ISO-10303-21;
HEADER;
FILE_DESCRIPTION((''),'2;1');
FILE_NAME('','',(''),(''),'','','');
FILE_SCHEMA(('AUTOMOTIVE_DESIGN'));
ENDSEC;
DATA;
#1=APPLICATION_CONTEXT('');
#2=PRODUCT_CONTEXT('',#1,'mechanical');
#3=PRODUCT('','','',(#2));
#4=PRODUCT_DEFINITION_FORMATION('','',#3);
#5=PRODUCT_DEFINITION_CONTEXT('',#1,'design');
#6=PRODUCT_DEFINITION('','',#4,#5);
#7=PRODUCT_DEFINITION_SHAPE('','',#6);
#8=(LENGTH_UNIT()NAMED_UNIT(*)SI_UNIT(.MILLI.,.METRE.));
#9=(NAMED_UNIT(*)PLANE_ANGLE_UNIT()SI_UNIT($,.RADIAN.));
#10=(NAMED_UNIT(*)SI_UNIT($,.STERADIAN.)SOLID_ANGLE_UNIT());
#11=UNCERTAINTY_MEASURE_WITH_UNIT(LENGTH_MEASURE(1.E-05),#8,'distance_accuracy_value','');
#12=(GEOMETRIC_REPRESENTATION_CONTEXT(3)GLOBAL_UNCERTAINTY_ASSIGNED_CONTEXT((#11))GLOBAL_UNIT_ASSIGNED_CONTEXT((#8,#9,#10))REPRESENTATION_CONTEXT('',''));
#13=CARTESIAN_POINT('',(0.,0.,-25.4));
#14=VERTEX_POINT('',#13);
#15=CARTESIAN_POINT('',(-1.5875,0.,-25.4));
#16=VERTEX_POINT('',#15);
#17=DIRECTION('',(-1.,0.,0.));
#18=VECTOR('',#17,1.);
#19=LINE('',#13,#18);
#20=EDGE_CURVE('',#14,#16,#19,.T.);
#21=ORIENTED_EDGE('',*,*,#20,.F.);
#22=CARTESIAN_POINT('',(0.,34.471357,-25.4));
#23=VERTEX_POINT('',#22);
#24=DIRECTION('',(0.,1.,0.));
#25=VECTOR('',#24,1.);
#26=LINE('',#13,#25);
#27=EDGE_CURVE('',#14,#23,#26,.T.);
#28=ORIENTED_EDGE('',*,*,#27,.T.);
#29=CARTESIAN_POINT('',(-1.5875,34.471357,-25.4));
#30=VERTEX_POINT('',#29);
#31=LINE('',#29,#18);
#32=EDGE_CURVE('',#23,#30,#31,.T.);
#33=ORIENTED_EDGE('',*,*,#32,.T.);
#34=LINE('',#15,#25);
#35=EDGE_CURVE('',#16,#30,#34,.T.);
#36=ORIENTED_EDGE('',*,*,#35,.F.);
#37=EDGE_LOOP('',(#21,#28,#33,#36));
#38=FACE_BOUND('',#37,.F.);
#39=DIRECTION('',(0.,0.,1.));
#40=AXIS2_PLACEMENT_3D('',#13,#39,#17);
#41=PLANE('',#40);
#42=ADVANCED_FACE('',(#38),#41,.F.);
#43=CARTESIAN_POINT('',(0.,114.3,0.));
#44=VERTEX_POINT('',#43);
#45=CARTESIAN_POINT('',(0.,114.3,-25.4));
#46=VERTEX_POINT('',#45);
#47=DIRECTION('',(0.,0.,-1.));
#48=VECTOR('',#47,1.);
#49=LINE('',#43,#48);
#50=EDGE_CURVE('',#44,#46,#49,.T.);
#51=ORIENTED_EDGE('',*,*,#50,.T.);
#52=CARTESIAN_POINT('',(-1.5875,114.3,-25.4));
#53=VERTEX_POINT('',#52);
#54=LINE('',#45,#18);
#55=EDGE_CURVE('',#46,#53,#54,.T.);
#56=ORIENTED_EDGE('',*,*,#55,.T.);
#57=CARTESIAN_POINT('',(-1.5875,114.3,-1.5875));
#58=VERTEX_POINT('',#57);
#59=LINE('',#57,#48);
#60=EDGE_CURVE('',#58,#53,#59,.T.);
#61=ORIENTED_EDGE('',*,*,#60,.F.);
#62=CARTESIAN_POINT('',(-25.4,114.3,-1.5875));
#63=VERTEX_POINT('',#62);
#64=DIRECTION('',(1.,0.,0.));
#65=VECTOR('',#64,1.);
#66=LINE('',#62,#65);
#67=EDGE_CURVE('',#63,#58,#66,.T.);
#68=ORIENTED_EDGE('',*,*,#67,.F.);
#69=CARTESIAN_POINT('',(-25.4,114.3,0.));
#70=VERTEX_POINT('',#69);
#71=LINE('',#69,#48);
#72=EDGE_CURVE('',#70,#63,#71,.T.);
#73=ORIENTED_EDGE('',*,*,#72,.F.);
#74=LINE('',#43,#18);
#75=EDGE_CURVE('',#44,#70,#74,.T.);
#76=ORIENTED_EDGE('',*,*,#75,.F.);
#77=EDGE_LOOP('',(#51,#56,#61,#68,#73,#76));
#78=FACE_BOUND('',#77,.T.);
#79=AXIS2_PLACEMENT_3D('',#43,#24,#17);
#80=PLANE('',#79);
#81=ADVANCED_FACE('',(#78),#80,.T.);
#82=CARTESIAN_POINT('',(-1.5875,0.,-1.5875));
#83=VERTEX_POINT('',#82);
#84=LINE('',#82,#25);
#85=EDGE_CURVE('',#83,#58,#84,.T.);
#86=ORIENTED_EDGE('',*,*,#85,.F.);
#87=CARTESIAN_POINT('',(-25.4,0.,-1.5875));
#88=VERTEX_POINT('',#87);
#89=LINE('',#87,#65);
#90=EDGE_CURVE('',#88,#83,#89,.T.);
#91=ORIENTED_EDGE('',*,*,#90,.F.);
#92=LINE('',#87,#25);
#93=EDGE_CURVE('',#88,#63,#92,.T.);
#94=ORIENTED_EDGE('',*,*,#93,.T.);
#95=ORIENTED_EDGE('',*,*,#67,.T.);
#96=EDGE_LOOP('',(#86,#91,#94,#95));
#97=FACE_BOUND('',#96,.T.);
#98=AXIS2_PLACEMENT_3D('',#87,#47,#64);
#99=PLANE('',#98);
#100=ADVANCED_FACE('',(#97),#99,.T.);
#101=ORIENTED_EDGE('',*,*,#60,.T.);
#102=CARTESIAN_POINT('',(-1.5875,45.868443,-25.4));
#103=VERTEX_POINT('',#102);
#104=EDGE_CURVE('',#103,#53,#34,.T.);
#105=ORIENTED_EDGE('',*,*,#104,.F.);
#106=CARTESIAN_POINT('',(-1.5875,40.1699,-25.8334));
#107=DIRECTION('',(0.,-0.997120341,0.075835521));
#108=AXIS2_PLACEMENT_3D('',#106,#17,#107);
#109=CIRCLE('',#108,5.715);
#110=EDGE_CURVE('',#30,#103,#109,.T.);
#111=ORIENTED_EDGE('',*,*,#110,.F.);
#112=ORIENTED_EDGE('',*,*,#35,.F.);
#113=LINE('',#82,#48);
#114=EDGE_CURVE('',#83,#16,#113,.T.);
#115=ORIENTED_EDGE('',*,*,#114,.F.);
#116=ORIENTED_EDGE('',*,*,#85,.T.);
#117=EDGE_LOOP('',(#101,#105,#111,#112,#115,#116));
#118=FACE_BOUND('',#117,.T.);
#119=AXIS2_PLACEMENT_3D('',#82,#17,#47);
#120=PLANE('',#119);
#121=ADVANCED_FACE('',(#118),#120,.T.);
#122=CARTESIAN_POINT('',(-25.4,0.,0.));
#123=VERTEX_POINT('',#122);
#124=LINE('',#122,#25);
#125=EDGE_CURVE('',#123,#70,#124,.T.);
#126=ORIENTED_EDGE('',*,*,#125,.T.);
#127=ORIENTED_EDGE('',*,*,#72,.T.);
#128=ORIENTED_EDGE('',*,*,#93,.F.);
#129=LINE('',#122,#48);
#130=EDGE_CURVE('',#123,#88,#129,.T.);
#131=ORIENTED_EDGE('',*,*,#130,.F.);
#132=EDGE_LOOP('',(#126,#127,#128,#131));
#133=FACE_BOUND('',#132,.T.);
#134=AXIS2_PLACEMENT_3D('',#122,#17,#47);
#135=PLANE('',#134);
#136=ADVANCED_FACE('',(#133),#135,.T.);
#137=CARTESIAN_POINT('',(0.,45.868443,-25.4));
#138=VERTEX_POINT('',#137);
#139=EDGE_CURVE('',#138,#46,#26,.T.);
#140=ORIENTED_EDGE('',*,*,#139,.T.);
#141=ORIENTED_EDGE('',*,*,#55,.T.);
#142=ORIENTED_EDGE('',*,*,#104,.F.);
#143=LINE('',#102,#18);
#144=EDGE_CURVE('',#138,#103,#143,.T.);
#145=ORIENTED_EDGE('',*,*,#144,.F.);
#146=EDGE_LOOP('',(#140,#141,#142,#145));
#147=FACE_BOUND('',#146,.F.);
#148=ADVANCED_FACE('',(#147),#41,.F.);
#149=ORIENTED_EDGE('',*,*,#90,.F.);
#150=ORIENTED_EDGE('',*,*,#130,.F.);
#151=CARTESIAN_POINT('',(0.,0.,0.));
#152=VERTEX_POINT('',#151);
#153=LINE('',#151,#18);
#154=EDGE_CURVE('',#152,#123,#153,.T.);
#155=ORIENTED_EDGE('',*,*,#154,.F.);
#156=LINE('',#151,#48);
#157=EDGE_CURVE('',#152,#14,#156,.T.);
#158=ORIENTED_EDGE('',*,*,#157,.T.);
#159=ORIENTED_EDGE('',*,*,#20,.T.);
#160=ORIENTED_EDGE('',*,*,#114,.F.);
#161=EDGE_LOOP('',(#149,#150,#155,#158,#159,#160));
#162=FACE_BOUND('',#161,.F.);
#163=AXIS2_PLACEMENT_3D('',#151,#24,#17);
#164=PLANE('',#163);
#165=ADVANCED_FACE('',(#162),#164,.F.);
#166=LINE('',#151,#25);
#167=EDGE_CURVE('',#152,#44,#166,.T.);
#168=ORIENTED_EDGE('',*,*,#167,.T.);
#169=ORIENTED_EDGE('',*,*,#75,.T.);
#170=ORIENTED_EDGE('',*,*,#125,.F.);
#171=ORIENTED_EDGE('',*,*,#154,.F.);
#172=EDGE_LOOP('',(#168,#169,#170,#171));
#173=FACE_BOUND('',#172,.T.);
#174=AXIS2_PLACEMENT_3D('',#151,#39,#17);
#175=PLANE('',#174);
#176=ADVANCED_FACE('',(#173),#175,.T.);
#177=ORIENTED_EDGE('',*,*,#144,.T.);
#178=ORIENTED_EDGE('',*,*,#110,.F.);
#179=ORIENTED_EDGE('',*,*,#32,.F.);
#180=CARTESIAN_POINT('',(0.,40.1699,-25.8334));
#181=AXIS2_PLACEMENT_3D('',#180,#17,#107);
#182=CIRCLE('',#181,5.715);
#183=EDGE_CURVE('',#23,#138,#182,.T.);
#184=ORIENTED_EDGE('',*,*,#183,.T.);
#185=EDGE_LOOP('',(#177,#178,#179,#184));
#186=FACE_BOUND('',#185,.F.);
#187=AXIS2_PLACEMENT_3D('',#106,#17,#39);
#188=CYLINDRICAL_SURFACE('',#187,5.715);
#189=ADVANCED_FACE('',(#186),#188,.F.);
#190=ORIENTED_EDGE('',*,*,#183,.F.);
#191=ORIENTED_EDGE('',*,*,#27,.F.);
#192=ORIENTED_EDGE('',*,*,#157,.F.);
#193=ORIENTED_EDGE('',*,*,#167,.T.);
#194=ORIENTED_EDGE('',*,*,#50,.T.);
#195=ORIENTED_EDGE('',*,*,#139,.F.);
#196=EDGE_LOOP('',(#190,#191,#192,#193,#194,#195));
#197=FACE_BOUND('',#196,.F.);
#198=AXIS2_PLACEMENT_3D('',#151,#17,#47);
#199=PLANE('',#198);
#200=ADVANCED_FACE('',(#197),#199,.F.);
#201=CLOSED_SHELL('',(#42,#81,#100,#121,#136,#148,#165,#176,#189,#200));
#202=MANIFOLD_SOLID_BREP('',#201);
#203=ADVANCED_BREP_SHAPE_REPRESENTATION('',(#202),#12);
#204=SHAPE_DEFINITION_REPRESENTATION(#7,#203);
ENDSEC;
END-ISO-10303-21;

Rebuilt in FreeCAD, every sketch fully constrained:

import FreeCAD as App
import Part
import Sketcher
Q = App.Units.Quantity

doc = App.newDocument("Part")
params = doc.addObject("Spreadsheet::Sheet", "Params")
for row, (alias, value) in enumerate([
    ("sketch1_width", "1 in"),
    ("sketch1_width2", "0.0625 in"),
    ("pad1_length", "4.5 in"),
    ("sketch2_diameter", "0.45 in"),
    ("pocket1_length", "1.8125 in"),
], start=1):
    params.set(f"A{row}", alias)
    params.set(f"B{row}", "=" + value)
    params.setAlias(f"B{row}", alias)

body = doc.addObject("PartDesign::Body", "Body")

sketch1 = body.newObject("Sketcher::SketchObject", "Sketch")
sketch1.AttachmentSupport = (doc.getObject("XZ_Plane"), [""])
sketch1.MapMode = "FlatFace"
sketch1.addGeometry([
    Part.LineSegment(App.Vector(-25.4, 0, 0), App.Vector(0, 0, 0)),
    Part.LineSegment(App.Vector(0, 0, 0), App.Vector(0, -25.4, 0)),
    Part.LineSegment(App.Vector(0, -25.4, 0), App.Vector(-1.5875, -25.4, 0)),
    Part.LineSegment(App.Vector(-1.5875, -25.4, 0), App.Vector(-1.5875, -1.5875, 0)),
    Part.LineSegment(App.Vector(-1.5875, -1.5875, 0), App.Vector(-25.4, -1.5875, 0)),
    Part.LineSegment(App.Vector(-25.4, -1.5875, 0), App.Vector(-25.4, 0, 0)),
], False)
sketch1.addConstraint([
    Sketcher.Constraint("Coincident", 0, 2, 1, 1),
    Sketcher.Constraint("Coincident", 1, 2, 2, 1),
    Sketcher.Constraint("Coincident", 2, 2, 3, 1),
    Sketcher.Constraint("Coincident", 3, 2, 4, 1),
    Sketcher.Constraint("Coincident", 4, 2, 5, 1),
    Sketcher.Constraint("Coincident", 5, 2, 0, 1),
    Sketcher.Constraint("Horizontal", 0),
    Sketcher.Constraint("Vertical", 1),
    Sketcher.Constraint("Horizontal", 2),
    Sketcher.Constraint("Vertical", 3),
    Sketcher.Constraint("Horizontal", 4),
    Sketcher.Constraint("Vertical", 5),
    Sketcher.Constraint("Coincident", 0, 2, -1, 1),
    Sketcher.Constraint("Equal", 0, 1),
    Sketcher.Constraint("Equal", 4, 3),
    Sketcher.Constraint("DistanceX", 0, 1, 0, 2, Q("1 in")),
    Sketcher.Constraint("DistanceX", 2, 2, 2, 1, Q("0.0625 in")),
])
sketch1.setExpression("Constraints[15]", "Params.sketch1_width")
sketch1.setExpression("Constraints[16]", "Params.sketch1_width2")
pad1 = body.newObject("PartDesign::Pad", "Pad")
pad1.Profile = sketch1
pad1.setExpression("Length", "Params.pad1_length")
pad1.Reversed = True

sketch2 = body.newObject("Sketcher::SketchObject", "Sketch001")
sketch2.AttachmentSupport = (doc.getObject("YZ_Plane"), [""])
sketch2.MapMode = "FlatFace"
sketch2.AttachmentOffset = App.Placement(App.Vector(0, 0, -0.0625 * 25.4), App.Rotation())
sketch2.addGeometry(Part.Circle(App.Vector(40.1699, -25.8334, 0), App.Vector(0, 0, 1), 5.715), False)
sketch2.addConstraint([
    Sketcher.Constraint("Diameter", 0, Q("0.45 in")),
    Sketcher.Constraint("DistanceX", -1, 1, 0, 3, Q("1.5815 in")),
    Sketcher.Constraint("DistanceY", 0, 3, -1, 1, 25.8334),
])
sketch2.setExpression("Constraints[0]", "Params.sketch2_diameter")
pocket1 = body.newObject("PartDesign::Pocket", "Pocket")
pocket1.Profile = sketch2
pocket1.setExpression("Length", "Params.pocket1_length")
pocket1.Reversed = True

doc.recompute()
